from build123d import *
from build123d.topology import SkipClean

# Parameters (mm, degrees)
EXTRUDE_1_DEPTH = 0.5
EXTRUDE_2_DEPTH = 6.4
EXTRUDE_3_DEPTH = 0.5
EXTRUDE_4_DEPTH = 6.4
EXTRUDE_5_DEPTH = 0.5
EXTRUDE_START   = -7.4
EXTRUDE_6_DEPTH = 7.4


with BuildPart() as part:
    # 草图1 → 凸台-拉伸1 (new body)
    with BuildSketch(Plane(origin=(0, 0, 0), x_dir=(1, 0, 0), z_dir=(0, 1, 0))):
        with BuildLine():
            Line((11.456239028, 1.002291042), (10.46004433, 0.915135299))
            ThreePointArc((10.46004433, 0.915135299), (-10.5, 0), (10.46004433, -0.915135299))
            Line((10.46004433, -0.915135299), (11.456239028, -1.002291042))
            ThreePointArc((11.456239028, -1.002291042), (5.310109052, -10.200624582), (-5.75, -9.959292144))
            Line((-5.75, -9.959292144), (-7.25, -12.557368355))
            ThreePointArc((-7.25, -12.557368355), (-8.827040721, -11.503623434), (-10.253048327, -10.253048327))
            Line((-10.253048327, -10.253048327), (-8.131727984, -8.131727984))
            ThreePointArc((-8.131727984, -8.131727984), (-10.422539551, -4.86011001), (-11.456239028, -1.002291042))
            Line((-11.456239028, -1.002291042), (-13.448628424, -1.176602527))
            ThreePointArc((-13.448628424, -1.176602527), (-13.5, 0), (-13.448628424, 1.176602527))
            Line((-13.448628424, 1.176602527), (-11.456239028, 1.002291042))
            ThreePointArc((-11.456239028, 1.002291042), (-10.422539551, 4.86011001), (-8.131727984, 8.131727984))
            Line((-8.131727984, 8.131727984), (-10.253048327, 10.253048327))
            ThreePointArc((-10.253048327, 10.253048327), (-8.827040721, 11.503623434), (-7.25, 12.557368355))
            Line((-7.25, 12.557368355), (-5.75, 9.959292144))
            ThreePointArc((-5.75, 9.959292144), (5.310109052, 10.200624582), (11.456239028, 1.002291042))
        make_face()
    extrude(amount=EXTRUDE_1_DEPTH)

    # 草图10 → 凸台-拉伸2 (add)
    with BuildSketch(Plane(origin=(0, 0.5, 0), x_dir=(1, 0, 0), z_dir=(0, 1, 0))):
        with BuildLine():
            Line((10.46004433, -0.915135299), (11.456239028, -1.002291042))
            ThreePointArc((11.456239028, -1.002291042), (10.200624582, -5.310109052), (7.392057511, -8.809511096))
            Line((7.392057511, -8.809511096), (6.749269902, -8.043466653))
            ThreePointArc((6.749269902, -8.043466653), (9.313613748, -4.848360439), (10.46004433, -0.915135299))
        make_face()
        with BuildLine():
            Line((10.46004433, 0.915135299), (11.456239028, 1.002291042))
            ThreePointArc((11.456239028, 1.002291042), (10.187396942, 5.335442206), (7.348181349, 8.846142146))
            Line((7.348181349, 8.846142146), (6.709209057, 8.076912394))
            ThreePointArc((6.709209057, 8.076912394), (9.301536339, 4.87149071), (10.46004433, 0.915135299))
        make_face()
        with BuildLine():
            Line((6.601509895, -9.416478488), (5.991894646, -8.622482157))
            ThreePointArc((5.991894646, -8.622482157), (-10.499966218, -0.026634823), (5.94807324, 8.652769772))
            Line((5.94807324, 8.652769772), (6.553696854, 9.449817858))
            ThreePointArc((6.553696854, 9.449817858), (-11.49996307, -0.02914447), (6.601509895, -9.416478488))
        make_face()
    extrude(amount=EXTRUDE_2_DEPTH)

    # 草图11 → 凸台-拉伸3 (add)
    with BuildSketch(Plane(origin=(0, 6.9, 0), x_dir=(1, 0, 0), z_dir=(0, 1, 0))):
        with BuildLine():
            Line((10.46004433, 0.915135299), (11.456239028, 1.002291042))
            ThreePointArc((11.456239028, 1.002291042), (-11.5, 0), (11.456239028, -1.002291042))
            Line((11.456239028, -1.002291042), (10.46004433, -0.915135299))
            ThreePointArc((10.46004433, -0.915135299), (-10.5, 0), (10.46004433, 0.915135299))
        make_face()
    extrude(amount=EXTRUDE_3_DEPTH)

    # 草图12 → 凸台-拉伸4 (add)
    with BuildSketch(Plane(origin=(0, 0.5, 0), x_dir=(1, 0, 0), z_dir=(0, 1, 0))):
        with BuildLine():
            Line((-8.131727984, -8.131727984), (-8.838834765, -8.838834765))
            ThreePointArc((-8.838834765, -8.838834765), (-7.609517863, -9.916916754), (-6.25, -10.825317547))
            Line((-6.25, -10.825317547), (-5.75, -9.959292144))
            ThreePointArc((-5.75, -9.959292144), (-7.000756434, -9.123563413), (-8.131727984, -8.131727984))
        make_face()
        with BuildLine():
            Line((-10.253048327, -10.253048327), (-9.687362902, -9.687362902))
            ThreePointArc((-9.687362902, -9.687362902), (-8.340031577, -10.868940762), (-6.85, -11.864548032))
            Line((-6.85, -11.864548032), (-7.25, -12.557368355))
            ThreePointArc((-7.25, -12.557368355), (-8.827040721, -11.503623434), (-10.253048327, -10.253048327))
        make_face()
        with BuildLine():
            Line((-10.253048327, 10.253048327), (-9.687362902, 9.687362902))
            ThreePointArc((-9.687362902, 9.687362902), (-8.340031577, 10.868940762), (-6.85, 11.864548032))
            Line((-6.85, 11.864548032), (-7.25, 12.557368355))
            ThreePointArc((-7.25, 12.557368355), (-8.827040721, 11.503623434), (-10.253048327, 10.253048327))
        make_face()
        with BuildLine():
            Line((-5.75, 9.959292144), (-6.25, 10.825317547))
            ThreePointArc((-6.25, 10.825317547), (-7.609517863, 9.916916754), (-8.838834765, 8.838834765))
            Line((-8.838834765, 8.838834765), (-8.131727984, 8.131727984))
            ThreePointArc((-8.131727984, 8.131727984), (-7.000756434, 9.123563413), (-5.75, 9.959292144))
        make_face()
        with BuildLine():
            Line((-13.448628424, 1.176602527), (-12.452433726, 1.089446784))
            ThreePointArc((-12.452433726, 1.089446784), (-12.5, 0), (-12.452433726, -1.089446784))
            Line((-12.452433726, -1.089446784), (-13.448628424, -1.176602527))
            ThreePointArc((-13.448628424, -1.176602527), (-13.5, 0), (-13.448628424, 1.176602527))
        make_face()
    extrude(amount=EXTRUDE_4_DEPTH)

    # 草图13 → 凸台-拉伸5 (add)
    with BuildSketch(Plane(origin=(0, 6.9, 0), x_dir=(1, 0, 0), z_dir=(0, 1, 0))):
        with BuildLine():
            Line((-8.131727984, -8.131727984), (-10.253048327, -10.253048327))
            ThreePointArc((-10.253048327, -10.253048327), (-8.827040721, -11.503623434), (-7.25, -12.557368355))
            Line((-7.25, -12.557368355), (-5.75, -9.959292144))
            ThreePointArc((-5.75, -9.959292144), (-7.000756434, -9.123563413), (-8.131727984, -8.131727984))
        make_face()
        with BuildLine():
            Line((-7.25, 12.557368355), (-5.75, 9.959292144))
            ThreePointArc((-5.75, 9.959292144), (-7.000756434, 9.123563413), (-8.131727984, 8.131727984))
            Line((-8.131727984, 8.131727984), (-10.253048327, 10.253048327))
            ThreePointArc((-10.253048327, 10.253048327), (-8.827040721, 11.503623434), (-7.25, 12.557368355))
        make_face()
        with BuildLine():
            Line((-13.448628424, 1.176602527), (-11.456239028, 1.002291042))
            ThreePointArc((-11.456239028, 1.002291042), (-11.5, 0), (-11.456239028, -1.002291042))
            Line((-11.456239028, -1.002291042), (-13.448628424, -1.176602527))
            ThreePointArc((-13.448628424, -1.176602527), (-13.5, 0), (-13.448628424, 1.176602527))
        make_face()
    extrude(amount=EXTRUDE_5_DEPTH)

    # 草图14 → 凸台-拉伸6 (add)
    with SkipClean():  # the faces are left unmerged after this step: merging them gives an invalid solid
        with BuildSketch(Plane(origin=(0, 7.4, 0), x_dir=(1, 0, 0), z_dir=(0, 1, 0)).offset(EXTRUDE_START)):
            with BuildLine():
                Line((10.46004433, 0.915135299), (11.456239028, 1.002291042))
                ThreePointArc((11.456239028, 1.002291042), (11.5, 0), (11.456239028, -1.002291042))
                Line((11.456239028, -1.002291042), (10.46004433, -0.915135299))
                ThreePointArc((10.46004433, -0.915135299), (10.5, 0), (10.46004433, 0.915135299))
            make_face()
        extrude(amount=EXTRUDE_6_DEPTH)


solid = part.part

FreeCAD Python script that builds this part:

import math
import FreeCAD as App
import Part
import Sketcher

V = App.Vector
Q = App.Units.Quantity

doc = App.newDocument("Part")
body = doc.addObject("PartDesign::Body", "Body")

sketch1 = body.newObject("Sketcher::SketchObject", "Sketch")
sketch1.AttachmentSupport = (doc.getObject("XZ_Plane"), [""])
sketch1.MapMode = "FlatFace"
sketch1.addGeometry([
    Part.LineSegment(V(10.5, -0.9, 0), V(11.5, -1, 0)),
    Part.ArcOfCircle(Part.Circle(V(0, 0, 0), V(0, 0, 1), 11.5), math.radians(-120), math.radians(-5)),
    Part.LineSegment(V(-5.8, -10, 0), V(-7.2, -12.6, 0)),
    Part.ArcOfCircle(Part.Circle(V(0, 0, 0), V(0, 0, 1), 14.5), math.radians(-135), math.radians(-120)),
    Part.LineSegment(V(-10.3, -10.3, 0), V(-8.1, -8.1, 0)),
    Part.ArcOfCircle(Part.Circle(V(0, 0, 0), V(0, 0, 1), 11.5), math.radians(-175), math.radians(-135)),
    Part.LineSegment(V(-11.5, -1, 0), V(-13.4, -1.2, 0)),
    Part.ArcOfCircle(Part.Circle(V(0, 0, 0), V(0, 0, 1), 13.5), math.radians(175), math.radians(185)),
    Part.LineSegment(V(-13.4, 1.2, 0), V(-11.5, 1, 0)),
    Part.ArcOfCircle(Part.Circle(V(0, 0, 0), V(0, 0, 1), 11.5), math.radians(135), math.radians(175)),
    Part.LineSegment(V(-8.1, 8.1, 0), V(-10.3, 10.3, 0)),
    Part.ArcOfCircle(Part.Circle(V(0, 0, 0), V(0, 0, 1), 14.5), math.radians(120), math.radians(135)),
    Part.LineSegment(V(-7.2, 12.6, 0), V(-5.8, 10, 0)),
    Part.ArcOfCircle(Part.Circle(V(0, 0, 0), V(0, 0, 1), 11.5), math.radians(5), math.radians(120)),
    Part.LineSegment(V(11.5, 1, 0), V(10.5, 0.9, 0)),
    Part.ArcOfCircle(Part.Circle(V(0, 0, 0), V(0, 0, 1), 10.5), math.radians(5), math.radians(355)),
], False)
sketch1.addConstraint([
    Sketcher.Constraint("Coincident", 0, 2, 1, 2),
    Sketcher.Constraint("Coincident", 1, 1, 2, 1),
    Sketcher.Constraint("Coincident", 2, 2, 3, 2),
    Sketcher.Constraint("Coincident", 3, 1, 4, 1),
    Sketcher.Constraint("Coincident", 4, 2, 5, 2),
    Sketcher.Constraint("Coincident", 5, 1, 6, 1),
    Sketcher.Constraint("Coincident", 6, 2, 7, 2),
    Sketcher.Constraint("Coincident", 7, 1, 8, 1),
    Sketcher.Constraint("Coincident", 8, 2, 9, 2),
    Sketcher.Constraint("Coincident", 9, 1, 10, 1),
    Sketcher.Constraint("Coincident", 10, 2, 11, 2),
    Sketcher.Constraint("Coincident", 11, 1, 12, 1),
    Sketcher.Constraint("Coincident", 12, 2, 13, 2),
    Sketcher.Constraint("Coincident", 13, 1, 14, 1),
    Sketcher.Constraint("Coincident", 14, 2, 15, 1),
    Sketcher.Constraint("Coincident", 15, 2, 0, 1),
    Sketcher.Constraint("Coincident", 1, 3, -1, 1),
    Sketcher.Constraint("Coincident", 3, 3, -1, 1),
    Sketcher.Constraint("Coincident", 5, 3, -1, 1),
    Sketcher.Constraint("Coincident", 7, 3, -1, 1),
    Sketcher.Constraint("Coincident", 9, 3, -1, 1),
    Sketcher.Constraint("Coincident", 11, 3, -1, 1),
    Sketcher.Constraint("Coincident", 13, 3, -1, 1),
    Sketcher.Constraint("Coincident", 15, 3, -1, 1),
    Sketcher.Constraint("Equal", 1, 5),
    Sketcher.Constraint("Equal", 5, 9),
    Sketcher.Constraint("Equal", 3, 11),
    Sketcher.Constraint("Equal", 9, 13),
    Sketcher.Constraint("Parallel", 0, 8),
    Sketcher.Constraint("Perpendicular", 4, 10),
    Sketcher.Constraint("Parallel", 6, 14),
    Sketcher.Constraint("Horizontal", 0, 2, 5, 1),
    Sketcher.Constraint("Horizontal", 8, 2, 13, 1),
    Sketcher.Constraint("Vertical", 6, 2, 7, 1),
    Sketcher.Constraint("Vertical", 5, 1, 8, 2),
    Sketcher.Constraint("Vertical", 4, 2, 9, 1),
    Sketcher.Constraint("Vertical", 3, 1, 10, 2),
    Sketcher.Constraint("Vertical", 2, 2, 11, 1),
    Sketcher.Constraint("Vertical", 1, 1, 12, 2),
    Sketcher.Constraint("Radius", 1, 11.5),
    Sketcher.Constraint("Radius", 3, 14.5),
    Sketcher.Constraint("Radius", 7, 13.5),
    Sketcher.Constraint("Radius", 15, 10.5),
    Sketcher.Constraint("Angle", 0, Q("-5 deg")),
    Sketcher.Constraint("Angle", 2, Q("-120 deg")),
    Sketcher.Constraint("DistanceX", 1, 1, -1, 1, 5.75),
    Sketcher.Constraint("DistanceY", 1, 1, 5, 1, 8.957001),
    Sketcher.Constraint("DistanceX", 6, 2, 4, 2, 5.3169),
])
pad1 = body.newObject("PartDesign::Pad", "Pad")
pad1.Profile = sketch1
pad1.Length = 0.5
pad1.Reversed = True

sketch2 = body.newObject("Sketcher::SketchObject", "Sketch001")
sketch2.AttachmentSupport = (doc.getObject("XZ_Plane"), [""])
sketch2.MapMode = "FlatFace"
sketch2.AttachmentOffset = App.Placement(V(0, 0, -0.5), App.Rotation())
sketch2.addGeometry([
    Part.LineSegment(V(11.5, 1, 0), V(10.5, 0.9, 0)),
    Part.ArcOfCircle(Part.Circle(V(0, 0, 0), V(0, 0, 1), 10.5), math.radians(5), math.radians(50)),
    Part.LineSegment(V(6.7, 8, 0), V(7.4, 8.8, 0)),
    Part.ArcOfCircle(Part.Circle(V(0, 0, 0), V(0, 0, 1), 11.5), math.radians(5), math.radians(50)),
    Part.LineSegment(V(10.5, -0.9, 0), V(11.5, -1, 0)),
    Part.ArcOfCircle(Part.Circle(V(0, 0, 0), V(0, 0, 1), 11.5), math.radians(-50), math.radians(-5)),
    Part.LineSegment(V(7.3, -8.8, 0), V(6.7, -8.1, 0)),
    Part.ArcOfCircle(Part.Circle(V(0, 0, 0), V(0, 0, 1), 10.5), math.radians(-50), math.radians(-5)),
    Part.LineSegment(V(6.6, 9.4, 0), V(6, 8.6, 0)),
    Part.ArcOfCircle(Part.Circle(V(0, 0, 0), V(0, 0, 1), 10.5), math.radians(55), math.radians(305)),
    Part.LineSegment(V(5.9, -8.7, 0), V(6.6, -9.4, 0)),
    Part.ArcOfCircle(Part.Circle(V(0, 0, 0), V(0, 0, 1), 11.5), math.radians(55), math.radians(305)),
], False)
sketch2.addConstraint([
    Sketcher.Constraint("Coincident", 0, 2, 1, 1),
    Sketcher.Constraint("Coincident", 1, 2, 2, 1),
    Sketcher.Constraint("Coincident", 2, 2, 3, 2),
    Sketcher.Constraint("Coincident", 3, 1, 0, 1),
    Sketcher.Constraint("Coincident", 4, 2, 5, 2),
    Sketcher.Constraint("Coincident", 5, 1, 6, 1),
    Sketcher.Constraint("Coincident", 6, 2, 7, 1),
    Sketcher.Constraint("Coincident", 7, 2, 4, 1),
    Sketcher.Constraint("Coincident", 8, 2, 9, 1),
    Sketcher.Constraint("Coincident", 9, 2, 10, 1),
    Sketcher.Constraint("Coincident", 10, 2, 11, 2),
    Sketcher.Constraint("Coincident", 11, 1, 8, 1),
    Sketcher.Constraint("Coincident", 1, 3, -1, 1),
    Sketcher.Constraint("Coincident", 3, 3, -1, 1),
    Sketcher.Constraint("Coincident", 5, 3, -1, 1),
    Sketcher.Constraint("Coincident", 7, 3, -1, 1),
    Sketcher.Constraint("Coincident", 9, 3, -1, 1),
    Sketcher.Constraint("Coincident", 11, 3, -1, 1),
    Sketcher.Constraint("Equal", 3, 5),
    Sketcher.Constraint("Equal", 1, 7),
    Sketcher.Constraint("Equal", 7, 9),
    Sketcher.Constraint("Equal", 5, 11),
    Sketcher.Constraint("Vertical", 3, 1, 4, 2),
    Sketcher.Constraint("Vertical", 0, 2, 7, 2),
    Sketcher.Constraint("Radius", 1, 10.5),
    Sketcher.Constraint("Radius", 3, 11.5),
    Sketcher.Constraint("Angle", 0, Q("-175 deg")),
    Sketcher.Constraint("Angle", 2, Q("50 deg")),
    Sketcher.Constraint("Distance", 8, 1.00103),
    Sketcher.Constraint("DistanceX", -1, 1, 1, 2, 6.74927),
    Sketcher.Constraint("DistanceX", -1, 1, 3, 1, 11.456239),
    Sketcher.Constraint("DistanceX", -1, 1, 5, 1, 7.348181),
    Sketcher.Constraint("DistanceX", -1, 1, 6, 2, 6.709209),
    Sketcher.Constraint("DistanceY", 9, 2, -1, 1, 8.65277),
    Sketcher.Constraint("DistanceX", -1, 1, 11, 1, 6.60151),
    Sketcher.Constraint("DistanceY", 10, 2, 9, 2, 0.797048),
])
pad2 = body.newObject("PartDesign::Pad", "Pad001")
pad2.Profile = sketch2
pad2.Length = 6.4
pad2.Reversed = True

sketch3 = body.newObject("Sketcher::SketchObject", "Sketch002")
sketch3.AttachmentSupport = (doc.getObject("XZ_Plane"), [""])
sketch3.MapMode = "FlatFace"
sketch3.AttachmentOffset = App.Placement(V(0, 0, -6.9), App.Rotation())
sketch3.addGeometry([
    Part.LineSegment(V(10.5, -0.9, 0), V(11.5, -1, 0)),
    Part.ArcOfCircle(Part.Circle(V(0, 0, 0), V(0, 0, 1), 11.5), math.radians(5), math.radians(355)),
    Part.LineSegment(V(11.5, 1, 0), V(10.5, 0.9, 0)),
    Part.ArcOfCircle(Part.Circle(V(0, 0, 0), V(0, 0, 1), 10.5), math.radians(5), math.radians(355)),
], False)
sketch3.addConstraint([
    Sketcher.Constraint("Coincident", 0, 2, 1, 2),
    Sketcher.Constraint("Coincident", 1, 1, 2, 1),
    Sketcher.Constraint("Coincident", 2, 2, 3, 1),
    Sketcher.Constraint("Coincident", 3, 2, 0, 1),
    Sketcher.Constraint("Coincident", 1, 3, -1, 1),
    Sketcher.Constraint("Coincident", 3, 3, -1, 1),
    Sketcher.Constraint("Vertical", 0, 2, 1, 1),
    Sketcher.Constraint("Vertical", 2, 2, 3, 2),
    Sketcher.Constraint("Radius", 1, 11.5),
    Sketcher.Constraint("Radius", 3, 10.5),
    Sketcher.Constraint("Angle", 0, Q("-5 deg")),
    Sketcher.Constraint("DistanceX", -1, 1, 0, 2, 11.456239),
])
pad3 = body.newObject("PartDesign::Pad", "Pad002")
pad3.Profile = sketch3
pad3.Length = 0.5
pad3.Reversed = True

sketch4 = body.newObject("Sketcher::SketchObject", "Sketch003")
sketch4.AttachmentSupport = (doc.getObject("XZ_Plane"), [""])
sketch4.MapMode = "FlatFace"
sketch4.AttachmentOffset = App.Placement(V(0, 0, -0.5), App.Rotation())
sketch4.addGeometry([
    Part.LineSegment(V(-8.1, 8.1, 0), V(-8.8, 8.8, 0)),
    Part.ArcOfCircle(Part.Circle(V(0, 0, 0), V(0, 0, 1), 12.5), math.radians(120), math.radians(135)),
    Part.LineSegment(V(-6.2, 10.8, 0), V(-5.8, 10, 0)),
    Part.ArcOfCircle(Part.Circle(V(0, 0, 0), V(0, 0, 1), 11.5), math.radians(120), math.radians(135)),
    Part.LineSegment(V(-9.7, 9.7, 0), V(-10.3, 10.3, 0)),
    Part.ArcOfCircle(Part.Circle(V(0, 0, 0), V(0, 0, 1), 14.5), math.radians(120), math.radians(135)),
    Part.LineSegment(V(-7.2, 12.6, 0), V(-6.8, 11.9, 0)),
    Part.ArcOfCircle(Part.Circle(V(0, 0, 0), V(0, 0, 1), 13.7), math.radians(120), math.radians(135)),
    Part.LineSegment(V(-10.3, -10.3, 0), V(-9.7, -9.7, 0)),
    Part.ArcOfCircle(Part.Circle(V(0, 0, 0), V(0, 0, 1), 13.7), math.radians(-135), math.radians(-120)),
    Part.LineSegment(V(-6.8, -11.9, 0), V(-7.2, -12.6, 0)),
    Part.ArcOfCircle(Part.Circle(V(0, 0, 0), V(0, 0, 1), 14.5), math.radians(-135), math.radians(-120)),
    Part.LineSegment(V(-5.8, -10, 0), V(-6.2, -10.8, 0)),
    Part.ArcOfCircle(Part.Circle(V(0, 0, 0), V(0, 0, 1), 12.5), math.radians(-135), math.radians(-120)),
    Part.LineSegment(V(-8.8, -8.8, 0), V(-8.1, -8.1, 0)),
    Part.ArcOfCircle(Part.Circle(V(0, 0, 0), V(0, 0, 1), 11.5), math.radians(-135), math.radians(-120)),
    Part.LineSegment(V(-12.5, -1.1, 0), V(-13.4, -1.2, 0)),
    Part.ArcOfCircle(Part.Circle(V(0, 0, 0), V(0, 0, 1), 13.5), math.radians(175), math.radians(185)),
    Part.LineSegment(V(-13.4, 1.2, 0), V(-12.5, 1.1, 0)),
    Part.ArcOfCircle(Part.Circle(V(0, 0, 0), V(0, 0, 1), 12.5), math.radians(175), math.radians(185)),
], False)
sketch4.addConstraint([
    Sketcher.Constraint("Coincident", 0, 2, 1, 2),
    Sketcher.Constraint("Coincident", 1, 1, 2, 1),
    Sketcher.Constraint("Coincident", 2, 2, 3, 1),
    Sketcher.Constraint("Coincident", 3, 2, 0, 1),
    Sketcher.Constraint("Coincident", 4, 2, 5, 2),
    Sketcher.Constraint("Coincident", 5, 1, 6, 1),
    Sketcher.Constraint("Coincident", 6, 2, 7, 1),
    Sketcher.Constraint("Coincident", 7, 2, 4, 1),
    Sketcher.Constraint("Coincident", 8, 2, 9, 1),
    Sketcher.Constraint("Coincident", 9, 2, 10, 1),
    Sketcher.Constraint("Coincident", 10, 2, 11, 2),
    Sketcher.Constraint("Coincident", 11, 1, 8, 1),
    Sketcher.Constraint("Coincident", 12, 2, 13, 2),
    Sketcher.Constraint("Coincident", 13, 1, 14, 1),
    Sketcher.Constraint("Coincident", 14, 2, 15, 1),
    Sketcher.Constraint("Coincident", 15, 2, 12, 1),
    Sketcher.Constraint("Coincident", 16, 2, 17, 2),
    Sketcher.Constraint("Coincident", 17, 1, 18, 1),
    Sketcher.Constraint("Coincident", 18, 2, 19, 1),
    Sketcher.Constraint("Coincident", 19, 2, 16, 1),
    Sketcher.Constraint("Coincident", 1, 3, -1, 1),
    Sketcher.Constraint("Coincident", 3, 3, -1, 1),
    Sketcher.Constraint("Coincident", 5, 3, -1, 1),
    Sketcher.Constraint("Coincident", 7, 3, -1, 1),
    Sketcher.Constraint("Coincident", 9, 3, -1, 1),
    Sketcher.Constraint("Coincident", 11, 3, -1, 1),
    Sketcher.Constraint("Coincident", 13, 3, -1, 1),
    Sketcher.Constraint("Coincident", 15, 3, -1, 1),
    Sketcher.Constraint("Coincident", 17, 3, -1, 1),
    Sketcher.Constraint("Coincident", 19, 3, -1, 1),
    Sketcher.Constraint("Equal", 7, 9),
    Sketcher.Constraint("Equal", 5, 11),
    Sketcher.Constraint("Equal", 1, 13),
    Sketcher.Constraint("Equal", 3, 15),
    Sketcher.Constraint("Equal", 13, 19),
    Sketcher.Constraint("Parallel", 0, 4),
    Sketcher.Constraint("Parallel", 2, 6),
    Sketcher.Constraint("Perpendicular", 4, 8),
    Sketcher.Constraint("Parallel", 10, 12),
    Sketcher.Constraint("Parallel", 8, 14),
    Sketcher.Constraint("Vertical", 7, 2, 8, 2),
    Sketcher.Constraint("Vertical", 6, 2, 9, 2),
    Sketcher.Constraint("Vertical", 5, 1, 10, 2),
    Sketcher.Constraint("Vertical", 4, 2, 11, 1),
    Sketcher.Constraint("Vertical", 1, 1, 12, 2),
    Sketcher.Constraint("Vertical", 0, 2, 13, 1),
    Sketcher.Constraint("Vertical", 16, 2, 17, 1),
    Sketcher.Constraint("Vertical", 18, 2, 19, 2),
    Sketcher.Constraint("Equal", 14, 16),
    Sketcher.Constraint("Radius", 1, 12.5),
    Sketcher.Constraint("Radius", 3, 11.5),
    Sketcher.Constraint("Radius", 5, 14.5),
    Sketcher.Constraint("Radius", 7, 13.7),
    Sketcher.Constraint("Angle", 2, Q("-60 deg")),
    Sketcher.Constraint("Angle", 16, Q("-175 deg")),
    Sketcher.Constraint("DistanceX", 5, 1, 1, 1, 1.0),
    Sketcher.Constraint("DistanceX", 1, 1, -1, 1, 6.25),
    Sketcher.Constraint("DistanceY", 4, 2, 6, 2, 1.6115),
    Sketcher.Constraint("DistanceX", 16, 2, 14, 2, 5.3169),
    Sketcher.Constraint("DistanceX", 16, 2, -1, 1, 13.448628),
])
pad4 = body.newObject("PartDesign::Pad", "Pad003")
pad4.Profile = sketch4
pad4.Length = 6.4
pad4.Reversed = True

sketch5 = body.newObject("Sketcher::SketchObject", "Sketch004")
sketch5.AttachmentSupport = (doc.getObject("XZ_Plane"), [""])
sketch5.MapMode = "FlatFace"
sketch5.AttachmentOffset = App.Placement(V(0, 0, -6.9), App.Rotation())
sketch5.addGeometry([
    Part.LineSegment(V(-8.1, 8.1, 0), V(-10.3, 10.3, 0)),
    Part.ArcOfCircle(Part.Circle(V(0, 0, 0), V(0, 0, 1), 14.5), math.radians(120), math.radians(135)),
    Part.LineSegment(V(-7.2, 12.6, 0), V(-5.8, 10, 0)),
    Part.ArcOfCircle(Part.Circle(V(0, 0, 0), V(0, 0, 1), 11.5), math.radians(120), math.radians(135)),
    Part.LineSegment(V(-5.8, -10, 0), V(-7.2, -12.6, 0)),
    Part.ArcOfCircle(Part.Circle(V(0, 0, 0), V(0, 0, 1), 14.5), math.radians(-135), math.radians(-120)),
    Part.LineSegment(V(-10.3, -10.3, 0), V(-8.1, -8.1, 0)),
    Part.ArcOfCircle(Part.Circle(V(0, 0, 0), V(0, 0, 1), 11.5), math.radians(-135), math.radians(-120)),
    Part.LineSegment(V(-11.5, -1, 0), V(-13.4, -1.2, 0)),
    Part.ArcOfCircle(Part.Circle(V(0, 0, 0), V(0, 0, 1), 13.5), math.radians(175), math.radians(185)),
    Part.LineSegment(V(-13.4, 1.2, 0), V(-11.5, 1, 0)),
    Part.ArcOfCircle(Part.Circle(V(0, 0, 0), V(0, 0, 1), 11.5), math.radians(175), math.radians(185)),
], False)
sketch5.addConstraint([
    Sketcher.Constraint("Coincident", 0, 2, 1, 2),
    Sketcher.Constraint("Coincident", 1, 1, 2, 1),
    Sketcher.Constraint("Coincident", 2, 2, 3, 1),
    Sketcher.Constraint("Coincident", 3, 2, 0, 1),
    Sketcher.Constraint("Coincident", 4, 2, 5, 2),
    Sketcher.Constraint("Coincident", 5, 1, 6, 1),
    Sketcher.Constraint("Coincident", 6, 2, 7, 1),
    Sketcher.Constraint("Coincident", 7, 2, 4, 1),
    Sketcher.Constraint("Coincident", 8, 2, 9, 2),
    Sketcher.Constraint("Coincident", 9, 1, 10, 1),
    Sketcher.Constraint("Coincident", 10, 2, 11, 1),
    Sketcher.Constraint("Coincident", 11, 2, 8, 1),
    Sketcher.Constraint("Coincident", 1, 3, -1, 1),
    Sketcher.Constraint("Coincident", 3, 3, -1, 1),
    Sketcher.Constraint("Coincident", 5, 3, -1, 1),
    Sketcher.Constraint("Coincident", 7, 3, -1, 1),
    Sketcher.Constraint("Coincident", 9, 3, -1, 1),
    Sketcher.Constraint("Coincident", 11, 3, -1, 1),
    Sketcher.Constraint("Equal", 1, 5),
    Sketcher.Constraint("Equal", 3, 7),
    Sketcher.Constraint("Equal", 7, 11),
    Sketcher.Constraint("Perpendicular", 0, 6),
    Sketcher.Constraint("Vertical", 1, 1, 4, 2),
    Sketcher.Constraint("Vertical", 0, 2, 5, 1),
    Sketcher.Constraint("Vertical", 3, 2, 6, 2),
    Sketcher.Constraint("Vertical", 2, 2, 7, 2),
    Sketcher.Constraint("Vertical", 8, 2, 9, 1),
    Sketcher.Constraint("Vertical", 10, 2, 11, 2),
    Sketcher.Constraint("Radius", 1, 14.5),
    Sketcher.Constraint("Radius", 3, 11.5),
    Sketcher.Constraint("Radius", 9, 13.5),
    Sketcher.Constraint("Angle", 2, Q("-60 deg")),
    Sketcher.Constraint("Angle", 8, Q("-175 deg")),
    Sketcher.Constraint("DistanceX", 1, 1, -1, 1, 7.25),
    Sketcher.Constraint("DistanceX", 8, 2, 6, 2, 5.3169),
    Sketcher.Constraint("DistanceX", 0, 2, -1, 1, 10.253048),
])
pad5 = body.newObject("PartDesign::Pad", "Pad004")
pad5.Profile = sketch5
pad5.Length = 0.5
pad5.Reversed = True

sketch6 = body.newObject("Sketcher::SketchObject", "Sketch005")
sketch6.AttachmentSupport = (doc.getObject("XZ_Plane"), [""])
sketch6.MapMode = "FlatFace"
sketch6.addGeometry([
    Part.LineSegment(V(11.5, -1, 0), V(10.5, -0.9, 0)),
    Part.ArcOfCircle(Part.Circle(V(0, 0, 0), V(0, 0, 1), 10.5), math.radians(-5), math.radians(5)),
    Part.LineSegment(V(10.5, 0.9, 0), V(11.5, 1, 0)),
    Part.ArcOfCircle(Part.Circle(V(0, 0, 0), V(0, 0, 1), 11.5), math.radians(-5), math.radians(5)),
], False)
sketch6.addConstraint([
    Sketcher.Constraint("Coincident", 0, 2, 1, 1),
    Sketcher.Constraint("Coincident", 1, 2, 2, 1),
    Sketcher.Constraint("Coincident", 2, 2, 3, 2),
    Sketcher.Constraint("Coincident", 3, 1, 0, 1),
    Sketcher.Constraint("Coincident", 1, 3, -1, 1),
    Sketcher.Constraint("Coincident", 3, 3, -1, 1),
    Sketcher.Constraint("Vertical", 0, 2, 1, 2),
    Sketcher.Constraint("Vertical", 2, 2, 3, 1),
    Sketcher.Constraint("Radius", 1, 10.5),
    Sketcher.Constraint("Radius", 3, 11.5),
    Sketcher.Constraint("Angle", 0, Q("175 deg")),
    Sketcher.Constraint("DistanceX", -1, 1, 2, 2, 11.456239),
])
pad6 = body.newObject("PartDesign::Pad", "Pad005")
pad6.Profile = sketch6
pad6.Length = 7.4
pad6.Reversed = True

doc.recompute()
